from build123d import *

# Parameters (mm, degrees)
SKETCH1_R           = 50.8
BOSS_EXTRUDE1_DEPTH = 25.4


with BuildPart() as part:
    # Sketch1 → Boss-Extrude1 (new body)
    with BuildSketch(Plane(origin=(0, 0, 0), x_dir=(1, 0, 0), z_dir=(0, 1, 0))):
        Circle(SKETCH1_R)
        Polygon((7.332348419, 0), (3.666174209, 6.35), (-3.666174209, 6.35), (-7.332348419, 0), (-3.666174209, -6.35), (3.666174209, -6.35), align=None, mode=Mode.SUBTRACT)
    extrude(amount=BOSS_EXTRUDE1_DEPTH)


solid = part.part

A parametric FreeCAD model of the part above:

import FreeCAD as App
import Part
import Sketcher
Q = App.Units.Quantity


def add_polygon(sketch, points):
    """Adds a closed chain of lines whose ends are joined by coincident constraints."""
    first, n = sketch.GeometryCount, len(points)
    for a, b in zip(points, points[1:] + points[:1]):
        sketch.addGeometry(Part.LineSegment(App.Vector(*a, 0), App.Vector(*b, 0)), False)
    for i in range(n):
        sketch.addConstraint(Sketcher.Constraint("Coincident", first + i, 2, first + (i + 1) % n, 1))

doc = App.newDocument("Part")
body = doc.addObject("PartDesign::Body", "Body")

sketch1 = body.newObject("Sketcher::SketchObject", "Sketch")
sketch1.AttachmentSupport = (doc.getObject("XZ_Plane"), [""])
sketch1.MapMode = "FlatFace"
sketch1.addGeometry(Part.Circle(App.Vector(0, 0, 0), App.Vector(0, 0, 1), 51), False)
add_polygon(sketch1, [(4, -6), (7, 0), (4, 6), (-4, 6), (-7, 0), (-4, -6)])
sketch1.addConstraint([
    Sketcher.Constraint("Horizontal", 3),
    Sketcher.Constraint("Horizontal", 6),
    Sketcher.Constraint("Coincident", 0, 3, -1, 1),
    Sketcher.Constraint("Symmetric", 1, 2, 4, 2, -1, 1),
    Sketcher.Constraint("Symmetric", 2, 2, 5, 2, -1, 1),
    Sketcher.Constraint("PointOnObject", 1, 2, -1),
    Sketcher.Constraint("Parallel", 1, 4),
    Sketcher.Constraint("Vertical", 3, 2, 5, 2),
    Sketcher.Constraint("Diameter", 0, Q("4 in")),
    Sketcher.Constraint("Angle", 1, Q("60 deg")),
    Sketcher.Constraint("DistanceY", 5, 2, 3, 2, Q("0.5 in")),
    Sketcher.Constraint("DistanceX", 3, 2, 3, 1, 7.332348),
])
pad1 = body.newObject("PartDesign::Pad", "Pad")
pad1.Profile = sketch1
pad1.Length = Q("1 in")
pad1.Reversed = True

doc.recompute()
